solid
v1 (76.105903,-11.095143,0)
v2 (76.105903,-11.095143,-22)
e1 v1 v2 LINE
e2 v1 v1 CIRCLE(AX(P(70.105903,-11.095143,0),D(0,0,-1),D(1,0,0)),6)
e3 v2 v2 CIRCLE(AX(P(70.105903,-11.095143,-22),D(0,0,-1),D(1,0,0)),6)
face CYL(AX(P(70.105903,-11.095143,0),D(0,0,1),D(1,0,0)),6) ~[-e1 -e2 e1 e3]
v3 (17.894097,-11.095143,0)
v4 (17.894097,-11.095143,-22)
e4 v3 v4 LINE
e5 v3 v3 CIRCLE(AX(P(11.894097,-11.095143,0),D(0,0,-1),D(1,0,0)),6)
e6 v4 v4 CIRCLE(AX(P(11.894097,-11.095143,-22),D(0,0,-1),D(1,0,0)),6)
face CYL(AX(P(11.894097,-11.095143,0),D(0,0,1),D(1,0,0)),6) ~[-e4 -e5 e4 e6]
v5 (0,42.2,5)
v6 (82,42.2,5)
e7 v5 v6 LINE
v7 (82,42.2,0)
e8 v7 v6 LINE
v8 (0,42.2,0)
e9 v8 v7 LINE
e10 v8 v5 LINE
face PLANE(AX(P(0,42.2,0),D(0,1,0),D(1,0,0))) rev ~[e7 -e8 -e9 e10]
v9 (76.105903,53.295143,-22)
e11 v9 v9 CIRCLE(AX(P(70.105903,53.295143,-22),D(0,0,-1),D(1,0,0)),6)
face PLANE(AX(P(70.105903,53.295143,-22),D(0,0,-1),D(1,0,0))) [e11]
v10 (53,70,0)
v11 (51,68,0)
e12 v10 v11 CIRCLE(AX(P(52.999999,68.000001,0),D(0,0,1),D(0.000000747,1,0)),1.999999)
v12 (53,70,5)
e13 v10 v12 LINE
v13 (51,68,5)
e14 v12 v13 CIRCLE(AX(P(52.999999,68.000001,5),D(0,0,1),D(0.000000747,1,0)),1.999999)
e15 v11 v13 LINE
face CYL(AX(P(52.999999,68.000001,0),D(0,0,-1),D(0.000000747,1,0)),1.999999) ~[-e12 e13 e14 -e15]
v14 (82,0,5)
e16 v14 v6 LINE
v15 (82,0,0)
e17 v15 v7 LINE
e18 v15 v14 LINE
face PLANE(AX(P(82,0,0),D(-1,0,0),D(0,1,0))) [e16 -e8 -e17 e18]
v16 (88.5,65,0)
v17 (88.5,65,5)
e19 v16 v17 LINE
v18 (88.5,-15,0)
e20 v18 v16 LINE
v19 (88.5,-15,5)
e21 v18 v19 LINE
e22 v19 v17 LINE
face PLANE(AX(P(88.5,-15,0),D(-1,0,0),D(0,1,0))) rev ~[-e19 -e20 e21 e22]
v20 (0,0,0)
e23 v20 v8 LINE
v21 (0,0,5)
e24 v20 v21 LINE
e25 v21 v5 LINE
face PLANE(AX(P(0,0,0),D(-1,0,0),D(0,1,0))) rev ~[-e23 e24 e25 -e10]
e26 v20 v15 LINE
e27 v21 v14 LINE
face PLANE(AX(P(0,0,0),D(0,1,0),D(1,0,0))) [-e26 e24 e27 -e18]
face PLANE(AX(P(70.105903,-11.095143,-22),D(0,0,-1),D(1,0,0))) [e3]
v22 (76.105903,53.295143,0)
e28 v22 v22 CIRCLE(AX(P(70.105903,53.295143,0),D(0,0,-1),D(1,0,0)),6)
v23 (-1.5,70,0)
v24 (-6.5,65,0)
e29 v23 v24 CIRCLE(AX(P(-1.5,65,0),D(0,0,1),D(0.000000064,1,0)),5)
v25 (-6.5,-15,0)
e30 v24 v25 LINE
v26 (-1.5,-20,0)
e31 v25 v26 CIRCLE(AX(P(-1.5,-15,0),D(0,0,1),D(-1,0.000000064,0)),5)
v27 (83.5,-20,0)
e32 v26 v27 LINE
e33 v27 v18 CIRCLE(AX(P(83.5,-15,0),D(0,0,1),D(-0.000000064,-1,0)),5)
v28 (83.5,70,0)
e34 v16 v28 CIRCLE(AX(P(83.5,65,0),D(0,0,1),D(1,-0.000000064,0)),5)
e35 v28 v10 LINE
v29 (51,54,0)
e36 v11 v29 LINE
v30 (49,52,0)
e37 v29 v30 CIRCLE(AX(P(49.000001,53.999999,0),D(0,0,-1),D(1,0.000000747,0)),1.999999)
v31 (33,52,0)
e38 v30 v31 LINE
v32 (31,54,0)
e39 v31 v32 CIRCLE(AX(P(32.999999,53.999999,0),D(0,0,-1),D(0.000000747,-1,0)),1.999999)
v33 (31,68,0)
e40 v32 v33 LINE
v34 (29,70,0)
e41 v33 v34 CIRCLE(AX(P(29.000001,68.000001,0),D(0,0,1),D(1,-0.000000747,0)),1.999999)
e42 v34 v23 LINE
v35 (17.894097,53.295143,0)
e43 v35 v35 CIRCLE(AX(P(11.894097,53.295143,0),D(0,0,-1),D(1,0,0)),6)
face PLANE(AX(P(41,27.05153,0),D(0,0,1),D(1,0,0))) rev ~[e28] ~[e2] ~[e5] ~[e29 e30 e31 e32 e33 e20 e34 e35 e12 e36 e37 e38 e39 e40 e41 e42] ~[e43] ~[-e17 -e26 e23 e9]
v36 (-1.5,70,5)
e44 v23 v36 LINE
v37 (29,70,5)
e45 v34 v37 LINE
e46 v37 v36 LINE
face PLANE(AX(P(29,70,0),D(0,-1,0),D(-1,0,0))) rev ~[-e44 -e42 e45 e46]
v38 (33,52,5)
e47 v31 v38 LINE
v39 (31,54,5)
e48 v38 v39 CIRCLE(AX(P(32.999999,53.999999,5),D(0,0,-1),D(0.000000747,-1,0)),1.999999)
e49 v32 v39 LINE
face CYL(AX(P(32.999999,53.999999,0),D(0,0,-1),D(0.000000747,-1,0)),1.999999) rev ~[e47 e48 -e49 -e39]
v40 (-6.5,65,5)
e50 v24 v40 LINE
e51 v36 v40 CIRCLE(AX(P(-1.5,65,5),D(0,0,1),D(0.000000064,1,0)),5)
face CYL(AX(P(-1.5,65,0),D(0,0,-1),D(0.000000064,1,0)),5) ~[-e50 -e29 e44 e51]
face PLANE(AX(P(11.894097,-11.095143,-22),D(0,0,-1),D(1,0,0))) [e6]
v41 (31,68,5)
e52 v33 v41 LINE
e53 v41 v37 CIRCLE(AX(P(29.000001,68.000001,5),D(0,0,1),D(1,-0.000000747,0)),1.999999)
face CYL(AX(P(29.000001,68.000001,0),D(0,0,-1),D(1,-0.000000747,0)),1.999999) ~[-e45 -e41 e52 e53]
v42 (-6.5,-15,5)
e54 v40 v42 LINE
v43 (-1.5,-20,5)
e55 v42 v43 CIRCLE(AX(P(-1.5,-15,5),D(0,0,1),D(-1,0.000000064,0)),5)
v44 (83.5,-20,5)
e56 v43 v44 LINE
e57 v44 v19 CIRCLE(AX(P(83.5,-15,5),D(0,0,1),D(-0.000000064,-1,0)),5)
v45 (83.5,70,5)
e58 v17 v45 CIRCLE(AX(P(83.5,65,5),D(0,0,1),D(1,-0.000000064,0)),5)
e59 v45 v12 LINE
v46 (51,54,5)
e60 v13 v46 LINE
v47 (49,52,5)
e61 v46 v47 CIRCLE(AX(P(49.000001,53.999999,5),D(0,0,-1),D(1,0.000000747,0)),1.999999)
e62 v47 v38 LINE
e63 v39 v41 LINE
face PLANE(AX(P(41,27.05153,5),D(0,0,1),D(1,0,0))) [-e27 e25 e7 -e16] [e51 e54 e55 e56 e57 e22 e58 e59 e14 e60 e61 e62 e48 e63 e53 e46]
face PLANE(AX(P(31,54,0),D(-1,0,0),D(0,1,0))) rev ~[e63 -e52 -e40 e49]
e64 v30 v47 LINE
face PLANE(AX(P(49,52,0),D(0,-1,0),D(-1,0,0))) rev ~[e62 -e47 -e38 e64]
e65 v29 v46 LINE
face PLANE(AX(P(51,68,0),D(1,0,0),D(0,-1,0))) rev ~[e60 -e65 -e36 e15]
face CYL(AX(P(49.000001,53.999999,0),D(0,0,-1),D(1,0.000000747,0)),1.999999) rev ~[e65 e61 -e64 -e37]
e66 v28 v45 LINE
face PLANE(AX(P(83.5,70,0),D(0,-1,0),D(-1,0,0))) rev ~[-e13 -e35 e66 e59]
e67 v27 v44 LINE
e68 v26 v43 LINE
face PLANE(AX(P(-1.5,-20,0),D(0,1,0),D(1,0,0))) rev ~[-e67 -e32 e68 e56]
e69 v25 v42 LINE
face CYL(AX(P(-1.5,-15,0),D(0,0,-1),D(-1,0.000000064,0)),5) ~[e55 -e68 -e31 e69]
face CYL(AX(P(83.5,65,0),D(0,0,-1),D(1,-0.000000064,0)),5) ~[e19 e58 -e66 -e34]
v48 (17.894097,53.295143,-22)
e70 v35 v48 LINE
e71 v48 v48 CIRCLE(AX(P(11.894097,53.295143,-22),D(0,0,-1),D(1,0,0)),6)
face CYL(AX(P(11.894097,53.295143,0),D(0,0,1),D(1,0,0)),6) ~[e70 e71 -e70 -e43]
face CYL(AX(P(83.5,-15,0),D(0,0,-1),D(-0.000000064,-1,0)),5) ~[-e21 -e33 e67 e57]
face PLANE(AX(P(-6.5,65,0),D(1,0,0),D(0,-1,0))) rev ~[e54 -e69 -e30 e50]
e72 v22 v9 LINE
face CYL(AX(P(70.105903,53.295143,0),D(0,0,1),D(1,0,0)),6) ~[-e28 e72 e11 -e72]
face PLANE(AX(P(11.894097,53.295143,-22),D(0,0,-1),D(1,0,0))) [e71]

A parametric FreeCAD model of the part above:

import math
import FreeCAD as App
import Part
import Sketcher

V = App.Vector


def add_polygon(sketch, points):
    """Adds a closed chain of lines whose ends are joined by coincident constraints."""
    first, n = sketch.GeometryCount, len(points)
    for a, b in zip(points, points[1:] + points[:1]):
        sketch.addGeometry(Part.LineSegment(App.Vector(*a, 0), App.Vector(*b, 0)), False)
    for i in range(n):
        sketch.addConstraint(Sketcher.Constraint("Coincident", first + i, 2, first + (i + 1) % n, 1))

doc = App.newDocument("Part")
params = doc.addObject("Spreadsheet::Sheet", "Params")
for row, (alias, value) in enumerate([
    ("sketch1_radius", "5 mm"),
    ("sketch1_radius2", "1.999999 mm"),
    ("sketch1_width", "85 mm"),
    ("sketch1_width2", "16 mm"),
    ("sketch1_width3", "82 mm"),
    ("pad1_length", "5 mm"),
    ("sketch2_diameter", "12 mm"),
    ("pad2_length", "22 mm"),
], start=1):
    params.set(f"A{row}", alias)
    params.set(f"B{row}", "=" + value)
    params.setAlias(f"B{row}", alias)

body = doc.addObject("PartDesign::Body", "Body")

sketch1 = body.newObject("Sketcher::SketchObject", "Sketch")
sketch1.AttachmentSupport = (doc.getObject("XY_Plane"), [""])
sketch1.MapMode = "FlatFace"
sketch1.addGeometry(Part.ArcOfCircle(Part.Circle(V(-1.5, -15, 0), V(0, 0, 1), 5), math.radians(180), math.radians(270)), False)
sketch1.addGeometry(Part.LineSegment(V(-1.5, -20, 0), V(83.5, -20, 0)), False)
sketch1.addGeometry(Part.ArcOfCircle(Part.Circle(V(83.5, -15, 0), V(0, 0, 1), 5), math.radians(-90), math.radians(0)), False)
sketch1.addGeometry(Part.LineSegment(V(88.5, -15, 0), V(88.5, 65, 0)), False)
sketch1.addGeometry(Part.ArcOfCircle(Part.Circle(V(83.5, 65, 0), V(0, 0, 1), 5), math.radians(0), math.radians(90)), False)
sketch1.addGeometry(Part.LineSegment(V(83.5, 70, 0), V(53, 70, 0)), False)
sketch1.addGeometry(Part.ArcOfCircle(Part.Circle(V(53, 68, 0), V(0, 0, 1), 2), math.radians(90), math.radians(180)), False)
sketch1.addGeometry(Part.LineSegment(V(51, 68, 0), V(51, 54, 0)), False)
sketch1.addGeometry(Part.ArcOfCircle(Part.Circle(V(49, 54, 0), V(0, 0, 1), 2), math.radians(-90), math.radians(0)), False)
sketch1.addGeometry(Part.LineSegment(V(49, 52, 0), V(33, 52, 0)), False)
sketch1.addGeometry(Part.ArcOfCircle(Part.Circle(V(33, 54, 0), V(0, 0, 1), 2), math.radians(180), math.radians(270)), False)
sketch1.addGeometry(Part.LineSegment(V(31, 54, 0), V(31, 68, 0)), False)
sketch1.addGeometry(Part.ArcOfCircle(Part.Circle(V(29, 68, 0), V(0, 0, 1), 2), math.radians(0), math.radians(90)), False)
sketch1.addGeometry(Part.LineSegment(V(29, 70, 0), V(-1.5, 70, 0)), False)
sketch1.addGeometry(Part.ArcOfCircle(Part.Circle(V(-1.5, 65, 0), V(0, 0, 1), 5), math.radians(90), math.radians(180)), False)
sketch1.addGeometry(Part.LineSegment(V(-6.5, 65, 0), V(-6.5, -15, 0)), False)
add_polygon(sketch1, [(82, 0), (0, 0), (0, 42.2), (82, 42.2)])
sketch1.addConstraint(Sketcher.Constraint("Tangent", 0, 2, 1, 1))
sketch1.addConstraint(Sketcher.Constraint("Tangent", 1, 2, 2, 1))
sketch1.addConstraint(Sketcher.Constraint("Tangent", 2, 2, 3, 1))
sketch1.addConstraint(Sketcher.Constraint("Tangent", 3, 2, 4, 1))
sketch1.addConstraint(Sketcher.Constraint("Tangent", 4, 2, 5, 1))
sketch1.addConstraint(Sketcher.Constraint("Tangent", 5, 2, 6, 1))
sketch1.addConstraint(Sketcher.Constraint("Tangent", 6, 2, 7, 1))
sketch1.addConstraint(Sketcher.Constraint("Tangent", 7, 2, 8, 2))
sketch1.addConstraint(Sketcher.Constraint("Tangent", 8, 1, 9, 1))
sketch1.addConstraint(Sketcher.Constraint("Tangent", 9, 2, 10, 2))
sketch1.addConstraint(Sketcher.Constraint("Tangent", 10, 1, 11, 1))
sketch1.addConstraint(Sketcher.Constraint("Tangent", 11, 2, 12, 1))
sketch1.addConstraint(Sketcher.Constraint("Tangent", 12, 2, 13, 1))
sketch1.addConstraint(Sketcher.Constraint("Tangent", 13, 2, 14, 1))
sketch1.addConstraint(Sketcher.Constraint("Tangent", 14, 2, 15, 1))
sketch1.addConstraint(Sketcher.Constraint("Tangent", 15, 2, 0, 1))
sketch1.addConstraint(Sketcher.Constraint("Horizontal", 1))
sketch1.addConstraint(Sketcher.Constraint("Vertical", 3))
sketch1.addConstraint(Sketcher.Constraint("Horizontal", 5))
sketch1.addConstraint(Sketcher.Constraint("Vertical", 7))
sketch1.addConstraint(Sketcher.Constraint("Horizontal", 9))
sketch1.addConstraint(Sketcher.Constraint("Vertical", 11))
sketch1.addConstraint(Sketcher.Constraint("Horizontal", 13))
sketch1.addConstraint(Sketcher.Constraint("Vertical", 15))
sketch1.addConstraint(Sketcher.Constraint("Horizontal", 16))
sketch1.addConstraint(Sketcher.Constraint("Vertical", 17))
sketch1.addConstraint(Sketcher.Constraint("Horizontal", 18))
sketch1.addConstraint(Sketcher.Constraint("Vertical", 19))
sketch1.addConstraint(Sketcher.Constraint("Coincident", 16, 2, -1, 1))
sketch1.addConstraint(Sketcher.Constraint("Equal", 0, 2))
sketch1.addConstraint(Sketcher.Constraint("Equal", 2, 4))
sketch1.addConstraint(Sketcher.Constraint("Equal", 6, 8))
sketch1.addConstraint(Sketcher.Constraint("Equal", 8, 10))
sketch1.addConstraint(Sketcher.Constraint("Equal", 10, 12))
sketch1.addConstraint(Sketcher.Constraint("Equal", 4, 14))
sketch1.addConstraint(Sketcher.Constraint("Horizontal", 6, 3, 12, 3))
sketch1.addConstraint(Sketcher.Constraint("Equal", 5, 13))
sketch1.addConstraint(Sketcher.Constraint("Radius", 0, 5.0))
sketch1.addConstraint(Sketcher.Constraint("Radius", 6, 1.999999))
sketch1.addConstraint(Sketcher.Constraint("DistanceX", 1, 1, 1, 2, 85.0))
sketch1.addConstraint(Sketcher.Constraint("DistanceX", 9, 2, 9, 1, 16.0))
sketch1.addConstraint(Sketcher.Constraint("DistanceX", 16, 2, 16, 1, 82.0))
sketch1.addConstraint(Sketcher.Constraint("DistanceY", 3, 1, 3, 2, 80.0))
sketch1.addConstraint(Sketcher.Constraint("DistanceY", 7, 2, 7, 1, 14.0))
sketch1.addConstraint(Sketcher.Constraint("DistanceY", 17, 1, 17, 2, 42.2))
sketch1.addConstraint(Sketcher.Constraint("DistanceY", 0, 3, -1, 1, 15.0))
sketch1.addConstraint(Sketcher.Constraint("DistanceX", -1, 1, 6, 3, 52.999999))
sketch1.setExpression("Constraints[41]", "Params.sketch1_radius")
sketch1.setExpression("Constraints[42]", "Params.sketch1_radius2")
sketch1.setExpression("Constraints[43]", "Params.sketch1_width")
sketch1.setExpression("Constraints[44]", "Params.sketch1_width2")
sketch1.setExpression("Constraints[45]", "Params.sketch1_width3")
pad1 = body.newObject("PartDesign::Pad", "Pad")
pad1.Profile = sketch1
pad1.setExpression("Length", "Params.pad1_length")

sketch2 = body.newObject("Sketcher::SketchObject", "Sketch001")
sketch2.AttachmentSupport = (doc.getObject("XY_Plane"), [""])
sketch2.MapMode = "FlatFace"
sketch2.addGeometry(Part.Circle(V(70, 53, 0), V(0, 0, 1), 6), False)
sketch2.addGeometry(Part.Circle(V(12, 53, 0), V(0, 0, 1), 6), False)
sketch2.addGeometry(Part.Circle(V(70, -11, 0), V(0, 0, 1), 6), False)
sketch2.addGeometry(Part.Circle(V(12, -11, 0), V(0, 0, 1), 6), False)
sketch2.addConstraint(Sketcher.Constraint("Equal", 0, 1))
sketch2.addConstraint(Sketcher.Constraint("Equal", 1, 2))
sketch2.addConstraint(Sketcher.Constraint("Equal", 2, 3))
sketch2.addConstraint(Sketcher.Constraint("Horizontal", 0, 3, 1, 3))
sketch2.addConstraint(Sketcher.Constraint("Horizontal", 2, 3, 3, 3))
sketch2.addConstraint(Sketcher.Constraint("Vertical", 0, 3, 2, 3))
sketch2.addConstraint(Sketcher.Constraint("Vertical", 1, 3, 3, 3))
sketch2.addConstraint(Sketcher.Constraint("Diameter", 0, 12.0))
sketch2.addConstraint(Sketcher.Constraint("DistanceX", -1, 1, 0, 3, 70.105903))
sketch2.addConstraint(Sketcher.Constraint("DistanceY", -1, 1, 0, 3, 53.295143))
sketch2.addConstraint(Sketcher.Constraint("DistanceX", -1, 1, 1, 3, 11.894097))
sketch2.addConstraint(Sketcher.Constraint("DistanceY", 2, 3, -1, 1, 11.095143))
sketch2.setExpression("Constraints[7]", "Params.sketch2_diameter")
pad2 = body.newObject("PartDesign::Pad", "Pad001")
pad2.Profile = sketch2
pad2.setExpression("Length", "Params.pad2_length")
pad2.Reversed = True

doc.recompute()
